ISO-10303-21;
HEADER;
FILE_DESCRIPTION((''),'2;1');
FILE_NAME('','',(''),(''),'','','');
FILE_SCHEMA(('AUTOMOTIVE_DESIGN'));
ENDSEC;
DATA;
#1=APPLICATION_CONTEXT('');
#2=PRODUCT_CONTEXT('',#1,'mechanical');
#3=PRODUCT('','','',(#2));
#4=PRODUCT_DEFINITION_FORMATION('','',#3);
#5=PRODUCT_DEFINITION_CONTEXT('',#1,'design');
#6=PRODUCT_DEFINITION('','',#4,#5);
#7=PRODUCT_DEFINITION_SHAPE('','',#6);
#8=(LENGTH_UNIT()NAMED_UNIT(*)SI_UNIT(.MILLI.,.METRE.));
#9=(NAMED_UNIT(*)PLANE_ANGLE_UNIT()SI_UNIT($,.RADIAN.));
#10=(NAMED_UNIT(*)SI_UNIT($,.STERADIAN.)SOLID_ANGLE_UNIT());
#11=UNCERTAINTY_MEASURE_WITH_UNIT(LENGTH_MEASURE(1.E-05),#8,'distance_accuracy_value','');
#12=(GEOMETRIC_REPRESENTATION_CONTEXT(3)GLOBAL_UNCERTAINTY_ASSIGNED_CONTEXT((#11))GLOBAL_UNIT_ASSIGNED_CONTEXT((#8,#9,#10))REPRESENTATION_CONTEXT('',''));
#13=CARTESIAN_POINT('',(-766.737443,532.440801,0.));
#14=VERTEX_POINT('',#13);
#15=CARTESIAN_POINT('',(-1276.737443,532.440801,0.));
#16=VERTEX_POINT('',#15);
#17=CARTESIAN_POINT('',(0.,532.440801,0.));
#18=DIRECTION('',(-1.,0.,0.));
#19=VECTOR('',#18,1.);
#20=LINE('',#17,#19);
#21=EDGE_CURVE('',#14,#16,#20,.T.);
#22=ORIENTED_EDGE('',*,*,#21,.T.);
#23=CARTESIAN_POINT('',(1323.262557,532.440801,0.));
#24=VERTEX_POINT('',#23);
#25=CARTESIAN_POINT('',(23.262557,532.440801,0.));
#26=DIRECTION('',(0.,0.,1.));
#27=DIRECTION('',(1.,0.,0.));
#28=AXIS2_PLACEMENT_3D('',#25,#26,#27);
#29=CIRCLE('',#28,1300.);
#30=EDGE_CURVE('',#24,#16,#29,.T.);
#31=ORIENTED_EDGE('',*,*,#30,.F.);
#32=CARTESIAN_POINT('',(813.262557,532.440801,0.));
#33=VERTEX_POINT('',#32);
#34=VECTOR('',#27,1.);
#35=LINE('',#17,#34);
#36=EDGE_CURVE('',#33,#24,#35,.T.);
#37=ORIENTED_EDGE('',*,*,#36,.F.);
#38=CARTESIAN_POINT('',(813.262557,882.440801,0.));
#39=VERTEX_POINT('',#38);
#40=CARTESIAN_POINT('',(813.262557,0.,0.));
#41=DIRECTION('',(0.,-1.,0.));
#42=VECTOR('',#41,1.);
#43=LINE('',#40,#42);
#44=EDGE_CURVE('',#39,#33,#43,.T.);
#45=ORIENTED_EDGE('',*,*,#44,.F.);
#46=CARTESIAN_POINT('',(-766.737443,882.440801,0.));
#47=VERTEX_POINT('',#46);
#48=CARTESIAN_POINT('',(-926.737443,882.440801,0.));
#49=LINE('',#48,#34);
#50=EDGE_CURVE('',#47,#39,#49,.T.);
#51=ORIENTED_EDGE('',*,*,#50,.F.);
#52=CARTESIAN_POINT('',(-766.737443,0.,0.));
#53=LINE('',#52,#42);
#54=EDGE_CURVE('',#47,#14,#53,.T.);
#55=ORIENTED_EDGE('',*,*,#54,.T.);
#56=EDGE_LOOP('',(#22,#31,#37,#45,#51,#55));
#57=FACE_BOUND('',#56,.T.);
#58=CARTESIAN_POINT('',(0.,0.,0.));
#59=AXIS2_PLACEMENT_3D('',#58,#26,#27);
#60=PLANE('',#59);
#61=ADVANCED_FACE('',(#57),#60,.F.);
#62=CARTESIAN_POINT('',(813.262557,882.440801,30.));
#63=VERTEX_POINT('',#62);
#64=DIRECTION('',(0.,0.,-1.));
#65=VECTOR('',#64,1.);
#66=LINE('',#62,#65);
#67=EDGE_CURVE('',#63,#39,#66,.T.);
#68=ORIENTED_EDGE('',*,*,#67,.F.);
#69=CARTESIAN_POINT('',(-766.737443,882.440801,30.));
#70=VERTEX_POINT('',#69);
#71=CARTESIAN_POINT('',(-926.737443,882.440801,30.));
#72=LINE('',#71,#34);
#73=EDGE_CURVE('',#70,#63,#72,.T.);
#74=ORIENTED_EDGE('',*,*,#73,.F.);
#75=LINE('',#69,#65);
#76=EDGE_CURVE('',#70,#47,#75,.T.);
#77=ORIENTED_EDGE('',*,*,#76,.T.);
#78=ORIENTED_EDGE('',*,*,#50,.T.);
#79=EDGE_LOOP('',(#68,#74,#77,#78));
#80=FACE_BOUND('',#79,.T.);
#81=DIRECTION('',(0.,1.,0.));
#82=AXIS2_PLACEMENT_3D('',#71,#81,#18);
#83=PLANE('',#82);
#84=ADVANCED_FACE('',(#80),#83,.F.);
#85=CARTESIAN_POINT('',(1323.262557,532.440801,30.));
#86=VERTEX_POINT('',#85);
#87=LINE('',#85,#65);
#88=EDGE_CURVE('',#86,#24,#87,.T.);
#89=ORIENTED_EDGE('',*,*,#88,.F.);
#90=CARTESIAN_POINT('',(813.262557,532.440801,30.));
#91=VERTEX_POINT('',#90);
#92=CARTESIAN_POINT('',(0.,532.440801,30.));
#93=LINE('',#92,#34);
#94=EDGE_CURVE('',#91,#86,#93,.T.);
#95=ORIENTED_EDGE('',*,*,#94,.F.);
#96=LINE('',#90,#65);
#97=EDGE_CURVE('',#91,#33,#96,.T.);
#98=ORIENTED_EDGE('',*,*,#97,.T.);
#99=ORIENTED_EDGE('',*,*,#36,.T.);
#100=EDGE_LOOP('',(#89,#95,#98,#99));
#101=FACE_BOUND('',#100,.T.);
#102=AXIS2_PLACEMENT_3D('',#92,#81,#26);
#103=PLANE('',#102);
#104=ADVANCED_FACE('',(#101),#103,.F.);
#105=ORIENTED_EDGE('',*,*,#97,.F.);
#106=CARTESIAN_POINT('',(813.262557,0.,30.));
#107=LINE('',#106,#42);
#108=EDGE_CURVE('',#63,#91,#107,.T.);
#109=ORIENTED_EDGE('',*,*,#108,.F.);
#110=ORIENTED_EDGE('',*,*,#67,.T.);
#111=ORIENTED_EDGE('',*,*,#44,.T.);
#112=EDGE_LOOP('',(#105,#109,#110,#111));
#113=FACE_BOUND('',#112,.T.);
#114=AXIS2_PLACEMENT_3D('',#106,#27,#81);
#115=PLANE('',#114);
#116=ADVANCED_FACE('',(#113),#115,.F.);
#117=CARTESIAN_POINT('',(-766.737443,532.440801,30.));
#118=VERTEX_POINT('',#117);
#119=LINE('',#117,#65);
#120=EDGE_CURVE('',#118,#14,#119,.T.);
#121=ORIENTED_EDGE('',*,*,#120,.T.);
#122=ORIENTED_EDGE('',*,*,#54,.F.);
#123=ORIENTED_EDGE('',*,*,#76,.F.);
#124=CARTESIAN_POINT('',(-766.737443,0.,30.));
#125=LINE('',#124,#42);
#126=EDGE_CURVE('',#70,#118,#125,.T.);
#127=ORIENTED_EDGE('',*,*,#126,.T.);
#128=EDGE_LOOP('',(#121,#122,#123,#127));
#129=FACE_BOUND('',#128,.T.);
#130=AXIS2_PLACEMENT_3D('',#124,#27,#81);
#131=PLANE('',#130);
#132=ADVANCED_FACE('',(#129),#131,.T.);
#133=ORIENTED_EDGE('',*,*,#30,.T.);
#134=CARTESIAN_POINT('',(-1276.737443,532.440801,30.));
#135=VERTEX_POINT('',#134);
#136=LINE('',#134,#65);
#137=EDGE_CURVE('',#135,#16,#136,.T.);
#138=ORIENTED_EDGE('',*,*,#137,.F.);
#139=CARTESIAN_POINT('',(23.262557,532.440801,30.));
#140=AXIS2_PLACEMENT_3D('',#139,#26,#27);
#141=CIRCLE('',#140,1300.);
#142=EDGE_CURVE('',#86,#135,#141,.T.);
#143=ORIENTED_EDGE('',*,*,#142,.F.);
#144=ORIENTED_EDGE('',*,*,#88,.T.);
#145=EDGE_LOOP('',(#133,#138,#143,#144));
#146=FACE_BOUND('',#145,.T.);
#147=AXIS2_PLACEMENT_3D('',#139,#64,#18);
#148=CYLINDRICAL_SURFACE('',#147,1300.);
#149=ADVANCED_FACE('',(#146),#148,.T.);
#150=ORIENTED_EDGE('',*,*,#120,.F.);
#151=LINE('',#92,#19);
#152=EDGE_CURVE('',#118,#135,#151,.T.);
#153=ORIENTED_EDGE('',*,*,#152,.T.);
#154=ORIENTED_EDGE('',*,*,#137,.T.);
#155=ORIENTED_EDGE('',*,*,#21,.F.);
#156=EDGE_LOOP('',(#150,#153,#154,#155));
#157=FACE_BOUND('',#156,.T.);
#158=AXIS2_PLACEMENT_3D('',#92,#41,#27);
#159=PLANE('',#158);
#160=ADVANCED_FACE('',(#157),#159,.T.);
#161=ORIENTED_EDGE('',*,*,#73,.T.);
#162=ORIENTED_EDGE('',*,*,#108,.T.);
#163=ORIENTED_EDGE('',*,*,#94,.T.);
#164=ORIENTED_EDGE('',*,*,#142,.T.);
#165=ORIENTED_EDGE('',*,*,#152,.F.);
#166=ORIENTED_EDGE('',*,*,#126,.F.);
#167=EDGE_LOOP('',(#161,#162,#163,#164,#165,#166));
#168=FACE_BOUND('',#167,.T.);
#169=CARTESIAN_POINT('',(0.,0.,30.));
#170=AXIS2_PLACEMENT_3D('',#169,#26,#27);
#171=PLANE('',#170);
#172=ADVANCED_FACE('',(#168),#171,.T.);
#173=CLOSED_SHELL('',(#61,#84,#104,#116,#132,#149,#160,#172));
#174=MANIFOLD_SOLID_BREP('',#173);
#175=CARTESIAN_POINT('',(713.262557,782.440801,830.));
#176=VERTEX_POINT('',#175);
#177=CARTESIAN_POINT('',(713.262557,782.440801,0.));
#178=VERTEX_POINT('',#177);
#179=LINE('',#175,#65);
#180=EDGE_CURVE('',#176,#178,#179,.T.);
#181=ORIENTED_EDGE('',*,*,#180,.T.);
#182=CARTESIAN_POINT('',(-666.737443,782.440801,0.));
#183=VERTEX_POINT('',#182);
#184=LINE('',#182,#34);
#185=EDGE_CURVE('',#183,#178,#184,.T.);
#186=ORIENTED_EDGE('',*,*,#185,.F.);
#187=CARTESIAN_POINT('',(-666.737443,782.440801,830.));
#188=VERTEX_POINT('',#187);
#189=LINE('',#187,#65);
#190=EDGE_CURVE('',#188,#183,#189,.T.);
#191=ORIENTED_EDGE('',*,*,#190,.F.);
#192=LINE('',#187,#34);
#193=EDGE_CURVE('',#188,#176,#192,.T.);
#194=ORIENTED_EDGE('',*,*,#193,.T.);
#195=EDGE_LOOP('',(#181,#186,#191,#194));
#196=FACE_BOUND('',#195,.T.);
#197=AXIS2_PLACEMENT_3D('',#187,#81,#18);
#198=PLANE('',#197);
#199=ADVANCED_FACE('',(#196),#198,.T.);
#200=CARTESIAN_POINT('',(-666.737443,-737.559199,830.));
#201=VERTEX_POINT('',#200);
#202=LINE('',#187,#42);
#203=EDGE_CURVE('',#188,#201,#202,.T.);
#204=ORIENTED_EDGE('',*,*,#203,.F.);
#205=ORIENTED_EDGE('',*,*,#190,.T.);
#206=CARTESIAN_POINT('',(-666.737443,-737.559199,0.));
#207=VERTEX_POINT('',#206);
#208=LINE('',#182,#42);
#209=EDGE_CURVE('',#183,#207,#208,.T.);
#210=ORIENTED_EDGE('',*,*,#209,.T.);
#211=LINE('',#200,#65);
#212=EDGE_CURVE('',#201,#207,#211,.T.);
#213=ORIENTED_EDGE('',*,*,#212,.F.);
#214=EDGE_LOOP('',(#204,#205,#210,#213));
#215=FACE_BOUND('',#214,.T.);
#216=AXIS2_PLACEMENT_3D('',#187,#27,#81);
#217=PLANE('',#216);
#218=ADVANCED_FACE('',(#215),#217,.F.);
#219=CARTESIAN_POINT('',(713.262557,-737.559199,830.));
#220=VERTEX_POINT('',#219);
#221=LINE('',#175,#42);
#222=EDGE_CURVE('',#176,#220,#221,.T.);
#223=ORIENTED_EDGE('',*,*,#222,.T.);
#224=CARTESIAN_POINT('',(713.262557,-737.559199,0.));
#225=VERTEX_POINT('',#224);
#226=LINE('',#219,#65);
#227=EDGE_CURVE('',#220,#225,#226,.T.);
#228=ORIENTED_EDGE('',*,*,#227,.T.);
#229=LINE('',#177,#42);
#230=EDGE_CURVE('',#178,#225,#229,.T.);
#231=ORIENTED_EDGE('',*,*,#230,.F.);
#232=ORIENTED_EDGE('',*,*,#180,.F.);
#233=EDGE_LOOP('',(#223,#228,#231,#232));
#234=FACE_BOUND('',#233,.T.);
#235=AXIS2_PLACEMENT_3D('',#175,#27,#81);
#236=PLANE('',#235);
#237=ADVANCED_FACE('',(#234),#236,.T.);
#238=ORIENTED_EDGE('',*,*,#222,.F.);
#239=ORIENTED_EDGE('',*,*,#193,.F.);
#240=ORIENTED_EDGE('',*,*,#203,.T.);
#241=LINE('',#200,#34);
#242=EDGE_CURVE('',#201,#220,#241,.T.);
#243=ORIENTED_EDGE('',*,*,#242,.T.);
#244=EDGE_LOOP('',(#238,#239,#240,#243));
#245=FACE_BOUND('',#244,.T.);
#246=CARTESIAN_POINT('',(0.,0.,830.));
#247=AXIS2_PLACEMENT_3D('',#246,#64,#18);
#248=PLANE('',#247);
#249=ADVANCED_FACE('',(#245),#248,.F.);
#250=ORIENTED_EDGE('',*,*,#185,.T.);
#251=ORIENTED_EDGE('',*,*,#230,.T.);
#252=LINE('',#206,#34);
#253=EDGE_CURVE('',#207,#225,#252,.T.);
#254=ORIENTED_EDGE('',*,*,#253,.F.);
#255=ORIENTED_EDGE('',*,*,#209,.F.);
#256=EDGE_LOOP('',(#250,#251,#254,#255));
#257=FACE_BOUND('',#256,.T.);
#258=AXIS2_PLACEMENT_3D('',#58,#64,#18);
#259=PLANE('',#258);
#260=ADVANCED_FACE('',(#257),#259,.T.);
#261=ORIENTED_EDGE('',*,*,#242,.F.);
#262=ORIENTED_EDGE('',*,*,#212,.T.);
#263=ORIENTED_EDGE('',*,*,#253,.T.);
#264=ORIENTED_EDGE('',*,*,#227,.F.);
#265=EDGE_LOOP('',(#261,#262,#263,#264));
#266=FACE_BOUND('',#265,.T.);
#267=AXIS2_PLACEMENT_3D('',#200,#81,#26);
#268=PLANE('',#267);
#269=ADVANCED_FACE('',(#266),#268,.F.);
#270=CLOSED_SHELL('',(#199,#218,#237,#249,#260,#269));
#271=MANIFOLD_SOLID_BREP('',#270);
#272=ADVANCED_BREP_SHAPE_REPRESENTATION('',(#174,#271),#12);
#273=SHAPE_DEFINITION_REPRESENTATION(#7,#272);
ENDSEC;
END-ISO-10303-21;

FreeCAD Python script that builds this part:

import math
import FreeCAD as App
import Part
import Sketcher
from FreeCAD import Vector
Q = App.Units.Quantity

doc = App.newDocument("Part")
params = doc.addObject("Spreadsheet::Sheet", "Params")
for row, (alias, value) in enumerate([
    ("sketch1_width", "1380 mm"),
    ("sketch1_height", "1520 mm"),
    ("pad1_length", "830 mm"),
    ("sketch2_radius", "1300 mm"),
    ("sketch2_width", "510 mm"),
    ("sketch2_height", "350 mm"),
    ("pad2_length", "30 mm"),
], start=1):
    params.set(f"A{row}", alias)
    params.set(f"B{row}", "=" + value)
    params.setAlias(f"B{row}", alias)

body = doc.addObject("PartDesign::Body", "Body")

sketch1 = body.newObject("Sketcher::SketchObject", "Sketch")
sketch1.AttachmentSupport = (doc.getObject("XY_Plane"), [""])
sketch1.MapMode = "FlatFace"
sketch1.addGeometry([
    Part.LineSegment(Vector(-667, 782, 0), Vector(-667, -738, 0)),
    Part.LineSegment(Vector(-667, -738, 0), Vector(713, -738, 0)),
    Part.LineSegment(Vector(713, -738, 0), Vector(713, 782, 0)),
    Part.LineSegment(Vector(713, 782, 0), Vector(-667, 782, 0)),
], False)
sketch1.addConstraint([
    Sketcher.Constraint("Coincident", 0, 2, 1, 1),
    Sketcher.Constraint("Coincident", 1, 2, 2, 1),
    Sketcher.Constraint("Coincident", 2, 2, 3, 1),
    Sketcher.Constraint("Coincident", 3, 2, 0, 1),
    Sketcher.Constraint("Vertical", 0),
    Sketcher.Constraint("Horizontal", 1),
    Sketcher.Constraint("Vertical", 2),
    Sketcher.Constraint("Horizontal", 3),
    Sketcher.Constraint("DistanceX", 1, 1, 1, 2, Q("1380 mm")),
    Sketcher.Constraint("DistanceY", 0, 2, 0, 1, Q("1520 mm")),
    Sketcher.Constraint("DistanceY", 0, 2, -1, 1, Q("737.559199 mm")),
    Sketcher.Constraint("DistanceX", 0, 2, -1, 1, Q("666.737443 mm")),
])
sketch1.setExpression("Constraints[8]", "Params.sketch1_width")
sketch1.setExpression("Constraints[9]", "Params.sketch1_height")
pad1 = body.newObject("PartDesign::Pad", "Pad")
pad1.Profile = sketch1
pad1.setExpression("Length", "Params.pad1_length")
body2 = doc.addObject("PartDesign::Body", "Body001")

sketch2 = body2.newObject("Sketcher::SketchObject", "Sketch001")
sketch2.AttachmentSupport = (doc.getObject("XY_Plane001"), [""])
sketch2.MapMode = "FlatFace"
sketch2.addGeometry([
    Part.ArcOfCircle(Part.Circle(Vector(23, 532, 0), Vector(0, 0, 1), 1300), math.radians(0), math.radians(180)),
    Part.LineSegment(Vector(-1277, 532, 0), Vector(-767, 532, 0)),
    Part.LineSegment(Vector(-767, 532, 0), Vector(-767, 882, 0)),
    Part.LineSegment(Vector(-767, 882, 0), Vector(813, 882, 0)),
    Part.LineSegment(Vector(813, 882, 0), Vector(813, 532, 0)),
    Part.LineSegment(Vector(813, 532, 0), Vector(1323, 532, 0)),
], False)
sketch2.addConstraint([
    Sketcher.Constraint("Coincident", 0, 2, 1, 1),
    Sketcher.Constraint("Coincident", 1, 2, 2, 1),
    Sketcher.Constraint("Coincident", 2, 2, 3, 1),
    Sketcher.Constraint("Coincident", 3, 2, 4, 1),
    Sketcher.Constraint("Coincident", 4, 2, 5, 1),
    Sketcher.Constraint("Coincident", 5, 2, 0, 1),
    Sketcher.Constraint("Horizontal", 1),
    Sketcher.Constraint("Vertical", 2),
    Sketcher.Constraint("Horizontal", 3),
    Sketcher.Constraint("Vertical", 4),
    Sketcher.Constraint("Horizontal", 5),
    Sketcher.Constraint("Horizontal", 1, 2, 4, 2),
    Sketcher.Constraint("Equal", 1, 5),
    Sketcher.Constraint("Radius", 0, Q("1300 mm")),
    Sketcher.Constraint("DistanceX", 1, 1, 1, 2, Q("510 mm")),
    Sketcher.Constraint("DistanceY", 2, 1, 2, 2, Q("350 mm")),
    Sketcher.Constraint("DistanceY", 0, 3, 2, 2, Q("350 mm")),
    Sketcher.Constraint("DistanceY", -1, 1, 0, 3, Q("532.440801 mm")),
    Sketcher.Constraint("DistanceX", -1, 1, 0, 3, Q("23.262557 mm")),
])
sketch2.setExpression("Constraints[13]", "Params.sketch2_radius")
sketch2.setExpression("Constraints[14]", "Params.sketch2_width")
sketch2.setExpression("Constraints[15]", "Params.sketch2_height")
pad2 = body2.newObject("PartDesign::Pad", "Pad001")
pad2.Profile = sketch2
pad2.setExpression("Length", "Params.pad2_length")

doc.recompute()
